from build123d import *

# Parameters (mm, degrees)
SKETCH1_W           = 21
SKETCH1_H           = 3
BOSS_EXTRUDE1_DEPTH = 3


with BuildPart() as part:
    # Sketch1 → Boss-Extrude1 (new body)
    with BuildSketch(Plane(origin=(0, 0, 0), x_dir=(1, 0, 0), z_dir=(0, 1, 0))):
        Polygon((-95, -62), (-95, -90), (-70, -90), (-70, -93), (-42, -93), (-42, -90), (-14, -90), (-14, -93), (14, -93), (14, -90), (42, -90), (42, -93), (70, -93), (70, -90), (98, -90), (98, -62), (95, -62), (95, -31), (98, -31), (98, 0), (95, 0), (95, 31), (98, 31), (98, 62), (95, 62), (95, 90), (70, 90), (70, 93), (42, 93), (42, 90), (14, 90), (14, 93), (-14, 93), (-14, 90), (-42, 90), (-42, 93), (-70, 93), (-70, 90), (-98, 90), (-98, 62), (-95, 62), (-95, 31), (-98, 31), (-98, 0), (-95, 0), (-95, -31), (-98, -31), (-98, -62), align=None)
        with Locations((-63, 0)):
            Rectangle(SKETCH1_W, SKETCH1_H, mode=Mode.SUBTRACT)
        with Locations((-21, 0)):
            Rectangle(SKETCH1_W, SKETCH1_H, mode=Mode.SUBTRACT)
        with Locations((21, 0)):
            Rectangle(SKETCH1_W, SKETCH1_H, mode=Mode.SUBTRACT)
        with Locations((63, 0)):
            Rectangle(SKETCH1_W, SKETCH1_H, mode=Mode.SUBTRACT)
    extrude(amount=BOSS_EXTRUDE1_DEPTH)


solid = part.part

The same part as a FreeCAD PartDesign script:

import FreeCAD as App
import Part
import Sketcher

doc = App.newDocument("Part")
body = doc.addObject("PartDesign::Body", "Body")

# Sketch on XZ plane
sketch1 = body.newObject("Sketcher::SketchObject", "Sketch")
sketch1.AttachmentSupport = (doc.getObject("XZ_Plane"), [""])
sketch1.MapMode = "FlatFace"
sketch1.addGeometry([
    Part.LineSegment(App.Vector(-95, 62, 0), App.Vector(-95, 90, 0)),  # 0
    Part.LineSegment(App.Vector(-95, 90, 0), App.Vector(-70, 90, 0)),  # 1
    Part.LineSegment(App.Vector(-70, 90, 0), App.Vector(-70, 93, 0)),  # 2
    Part.LineSegment(App.Vector(-70, 93, 0), App.Vector(-42, 93, 0)),  # 3
    Part.LineSegment(App.Vector(-42, 93, 0), App.Vector(-42, 90, 0)),  # 4
    Part.LineSegment(App.Vector(-42, 90, 0), App.Vector(-14, 90, 0)),  # 5
    Part.LineSegment(App.Vector(-14, 90, 0), App.Vector(-14, 93, 0)),  # 6
    Part.LineSegment(App.Vector(-14, 93, 0), App.Vector(14, 93, 0)),  # 7
    Part.LineSegment(App.Vector(14, 93, 0), App.Vector(14, 90, 0)),  # 8
    Part.LineSegment(App.Vector(14, 90, 0), App.Vector(42, 90, 0)),  # 9
    Part.LineSegment(App.Vector(42, 90, 0), App.Vector(42, 93, 0)),  # 10
    Part.LineSegment(App.Vector(42, 93, 0), App.Vector(70, 93, 0)),  # 11
    Part.LineSegment(App.Vector(70, 93, 0), App.Vector(70, 90, 0)),  # 12
    Part.LineSegment(App.Vector(70, 90, 0), App.Vector(98, 90, 0)),  # 13
    Part.LineSegment(App.Vector(98, 90, 0), App.Vector(98, 62, 0)),  # 14
    Part.LineSegment(App.Vector(98, 62, 0), App.Vector(95, 62, 0)),  # 15
    Part.LineSegment(App.Vector(95, 62, 0), App.Vector(95, 31, 0)),  # 16
    Part.LineSegment(App.Vector(95, 31, 0), App.Vector(98, 31, 0)),  # 17
    Part.LineSegment(App.Vector(98, 31, 0), App.Vector(98, 0, 0)),  # 18
    Part.LineSegment(App.Vector(98, 0, 0), App.Vector(95, 0, 0)),  # 19
    Part.LineSegment(App.Vector(95, 0, 0), App.Vector(95, -31, 0)),  # 20
    Part.LineSegment(App.Vector(95, -31, 0), App.Vector(98, -31, 0)),  # 21
    Part.LineSegment(App.Vector(98, -31, 0), App.Vector(98, -62, 0)),  # 22
    Part.LineSegment(App.Vector(98, -62, 0), App.Vector(95, -62, 0)),  # 23
    Part.LineSegment(App.Vector(95, -62, 0), App.Vector(95, -90, 0)),  # 24
    Part.LineSegment(App.Vector(95, -90, 0), App.Vector(70, -90, 0)),  # 25
    Part.LineSegment(App.Vector(70, -90, 0), App.Vector(70, -93, 0)),  # 26
    Part.LineSegment(App.Vector(70, -93, 0), App.Vector(42, -93, 0)),  # 27
    Part.LineSegment(App.Vector(42, -93, 0), App.Vector(42, -90, 0)),  # 28
    Part.LineSegment(App.Vector(42, -90, 0), App.Vector(14, -90, 0)),  # 29
    Part.LineSegment(App.Vector(14, -90, 0), App.Vector(14, -93, 0)),  # 30
    Part.LineSegment(App.Vector(14, -93, 0), App.Vector(-14, -93, 0)),  # 31
    Part.LineSegment(App.Vector(-14, -93, 0), App.Vector(-14, -90, 0)),  # 32
    Part.LineSegment(App.Vector(-14, -90, 0), App.Vector(-42, -90, 0)),  # 33
    Part.LineSegment(App.Vector(-42, -90, 0), App.Vector(-42, -93, 0)),  # 34
    Part.LineSegment(App.Vector(-42, -93, 0), App.Vector(-70, -93, 0)),  # 35
    Part.LineSegment(App.Vector(-70, -93, 0), App.Vector(-70, -90, 0)),  # 36
    Part.LineSegment(App.Vector(-70, -90, 0), App.Vector(-98, -90, 0)),  # 37
    Part.LineSegment(App.Vector(-98, -90, 0), App.Vector(-98, -62, 0)),  # 38
    Part.LineSegment(App.Vector(-98, -62, 0), App.Vector(-95, -62, 0)),  # 39
    Part.LineSegment(App.Vector(-95, -62, 0), App.Vector(-95, -31, 0)),  # 40
    Part.LineSegment(App.Vector(-95, -31, 0), App.Vector(-98, -31, 0)),  # 41
    Part.LineSegment(App.Vector(-98, -31, 0), App.Vector(-98, 0, 0)),  # 42
    Part.LineSegment(App.Vector(-98, 0, 0), App.Vector(-95, 0, 0)),  # 43
    Part.LineSegment(App.Vector(-95, 0, 0), App.Vector(-95, 31, 0)),  # 44
    Part.LineSegment(App.Vector(-95, 31, 0), App.Vector(-98, 31, 0)),  # 45
    Part.LineSegment(App.Vector(-98, 31, 0), App.Vector(-98, 62, 0)),  # 46
    Part.LineSegment(App.Vector(-98, 62, 0), App.Vector(-95, 62, 0)),  # 47
    Part.LineSegment(App.Vector(-52.5, 1.5, 0), App.Vector(-73.5, 1.5, 0)),  # 48
    Part.LineSegment(App.Vector(-73.5, 1.5, 0), App.Vector(-73.5, -1.5, 0)),  # 49
    Part.LineSegment(App.Vector(-73.5, -1.5, 0), App.Vector(-52.5, -1.5, 0)),  # 50
    Part.LineSegment(App.Vector(-52.5, -1.5, 0), App.Vector(-52.5, 1.5, 0)),  # 51
    Part.LineSegment(App.Vector(-10.5, 1.5, 0), App.Vector(-31.5, 1.5, 0)),  # 52
    Part.LineSegment(App.Vector(-31.5, 1.5, 0), App.Vector(-31.5, -1.5, 0)),  # 53
    Part.LineSegment(App.Vector(-31.5, -1.5, 0), App.Vector(-10.5, -1.5, 0)),  # 54
    Part.LineSegment(App.Vector(-10.5, -1.5, 0), App.Vector(-10.5, 1.5, 0)),  # 55
    Part.LineSegment(App.Vector(31.5, 1.5, 0), App.Vector(10.5, 1.5, 0)),  # 56
    Part.LineSegment(App.Vector(10.5, 1.5, 0), App.Vector(10.5, -1.5, 0)),  # 57
    Part.LineSegment(App.Vector(10.5, -1.5, 0), App.Vector(31.5, -1.5, 0)),  # 58
    Part.LineSegment(App.Vector(31.5, -1.5, 0), App.Vector(31.5, 1.5, 0)),  # 59
    Part.LineSegment(App.Vector(73.5, 1.5, 0), App.Vector(52.5, 1.5, 0)),  # 60
    Part.LineSegment(App.Vector(52.5, 1.5, 0), App.Vector(52.5, -1.5, 0)),  # 61
    Part.LineSegment(App.Vector(52.5, -1.5, 0), App.Vector(73.5, -1.5, 0)),  # 62
    Part.LineSegment(App.Vector(73.5, -1.5, 0), App.Vector(73.5, 1.5, 0)),  # 63
], False)
sketch1.addConstraint([
    Sketcher.Constraint("Coincident", 0, 2, 1, 1),
    Sketcher.Constraint("Coincident", 1, 2, 2, 1),
    Sketcher.Constraint("Coincident", 2, 2, 3, 1),
    Sketcher.Constraint("Coincident", 3, 2, 4, 1),
    Sketcher.Constraint("Coincident", 4, 2, 5, 1),
    Sketcher.Constraint("Coincident", 5, 2, 6, 1),
    Sketcher.Constraint("Coincident", 6, 2, 7, 1),
    Sketcher.Constraint("Coincident", 7, 2, 8, 1),
    Sketcher.Constraint("Coincident", 8, 2, 9, 1),
    Sketcher.Constraint("Coincident", 9, 2, 10, 1),
    Sketcher.Constraint("Coincident", 10, 2, 11, 1),
    Sketcher.Constraint("Coincident", 11, 2, 12, 1),
    Sketcher.Constraint("Coincident", 12, 2, 13, 1),
    Sketcher.Constraint("Coincident", 13, 2, 14, 1),
    Sketcher.Constraint("Coincident", 14, 2, 15, 1),
    Sketcher.Constraint("Coincident", 15, 2, 16, 1),
    Sketcher.Constraint("Coincident", 16, 2, 17, 1),
    Sketcher.Constraint("Coincident", 17, 2, 18, 1),
    Sketcher.Constraint("Coincident", 18, 2, 19, 1),
    Sketcher.Constraint("Coincident", 19, 2, 20, 1),
    Sketcher.Constraint("Coincident", 20, 2, 21, 1),
    Sketcher.Constraint("Coincident", 21, 2, 22, 1),
    Sketcher.Constraint("Coincident", 22, 2, 23, 1),
    Sketcher.Constraint("Coincident", 23, 2, 24, 1),
    Sketcher.Constraint("Coincident", 24, 2, 25, 1),
    Sketcher.Constraint("Coincident", 25, 2, 26, 1),
    Sketcher.Constraint("Coincident", 26, 2, 27, 1),
    Sketcher.Constraint("Coincident", 27, 2, 28, 1),
    Sketcher.Constraint("Coincident", 28, 2, 29, 1),
    Sketcher.Constraint("Coincident", 29, 2, 30, 1),
    Sketcher.Constraint("Coincident", 30, 2, 31, 1),
    Sketcher.Constraint("Coincident", 31, 2, 32, 1),
    Sketcher.Constraint("Coincident", 32, 2, 33, 1),
    Sketcher.Constraint("Coincident", 33, 2, 34, 1),
    Sketcher.Constraint("Coincident", 34, 2, 35, 1),
    Sketcher.Constraint("Coincident", 35, 2, 36, 1),
    Sketcher.Constraint("Coincident", 36, 2, 37, 1),
    Sketcher.Constraint("Coincident", 37, 2, 38, 1),
    Sketcher.Constraint("Coincident", 38, 2, 39, 1),
    Sketcher.Constraint("Coincident", 39, 2, 40, 1),
    Sketcher.Constraint("Coincident", 40, 2, 41, 1),
    Sketcher.Constraint("Coincident", 41, 2, 42, 1),
    Sketcher.Constraint("Coincident", 42, 2, 43, 1),
    Sketcher.Constraint("Coincident", 43, 2, 44, 1),
    Sketcher.Constraint("Coincident", 44, 2, 45, 1),
    Sketcher.Constraint("Coincident", 45, 2, 46, 1),
    Sketcher.Constraint("Coincident", 46, 2, 47, 1),
    Sketcher.Constraint("Coincident", 47, 2, 0, 1),
    Sketcher.Constraint("Coincident", 48, 2, 49, 1),
    Sketcher.Constraint("Coincident", 49, 2, 50, 1),
    Sketcher.Constraint("Coincident", 50, 2, 51, 1),
    Sketcher.Constraint("Coincident", 51, 2, 48, 1),
    Sketcher.Constraint("Coincident", 52, 2, 53, 1),
    Sketcher.Constraint("Coincident", 53, 2, 54, 1),
    Sketcher.Constraint("Coincident", 54, 2, 55, 1),
    Sketcher.Constraint("Coincident", 55, 2, 52, 1),
    Sketcher.Constraint("Coincident", 56, 2, 57, 1),
    Sketcher.Constraint("Coincident", 57, 2, 58, 1),
    Sketcher.Constraint("Coincident", 58, 2, 59, 1),
    Sketcher.Constraint("Coincident", 59, 2, 56, 1),
    Sketcher.Constraint("Coincident", 60, 2, 61, 1),
    Sketcher.Constraint("Coincident", 61, 2, 62, 1),
    Sketcher.Constraint("Coincident", 62, 2, 63, 1),
    Sketcher.Constraint("Coincident", 63, 2, 60, 1),
    Sketcher.Constraint("Vertical", 0),
    Sketcher.Constraint("Horizontal", 1),
    Sketcher.Constraint("Vertical", 2),
    Sketcher.Constraint("Horizontal", 3),
    Sketcher.Constraint("Vertical", 4),
    Sketcher.Constraint("Horizontal", 5),
    Sketcher.Constraint("Vertical", 6),
    Sketcher.Constraint("Horizontal", 7),
    Sketcher.Constraint("Vertical", 8),
    Sketcher.Constraint("Horizontal", 9),
    Sketcher.Constraint("Vertical", 10),
    Sketcher.Constraint("Horizontal", 11),
    Sketcher.Constraint("Vertical", 12),
    Sketcher.Constraint("Horizontal", 13),
    Sketcher.Constraint("Vertical", 14),
    Sketcher.Constraint("Horizontal", 15),
    Sketcher.Constraint("Vertical", 16),
    Sketcher.Constraint("Horizontal", 17),
    Sketcher.Constraint("Vertical", 18),
    Sketcher.Constraint("Horizontal", 19),
    Sketcher.Constraint("Vertical", 20),
    Sketcher.Constraint("Horizontal", 21),
    Sketcher.Constraint("Vertical", 22),
    Sketcher.Constraint("Horizontal", 23),
    Sketcher.Constraint("Vertical", 24),
    Sketcher.Constraint("Horizontal", 25),
    Sketcher.Constraint("Vertical", 26),
    Sketcher.Constraint("Horizontal", 27),
    Sketcher.Constraint("Vertical", 28),
    Sketcher.Constraint("Horizontal", 29),
    Sketcher.Constraint("Vertical", 30),
    Sketcher.Constraint("Horizontal", 31),
    Sketcher.Constraint("Vertical", 32),
    Sketcher.Constraint("Horizontal", 33),
    Sketcher.Constraint("Vertical", 34),
    Sketcher.Constraint("Horizontal", 35),
    Sketcher.Constraint("Vertical", 36),
    Sketcher.Constraint("Horizontal", 37),
    Sketcher.Constraint("Vertical", 38),
    Sketcher.Constraint("Horizontal", 39),
    Sketcher.Constraint("Vertical", 40),
    Sketcher.Constraint("Horizontal", 41),
    Sketcher.Constraint("Vertical", 42),
    Sketcher.Constraint("Horizontal", 43),
    Sketcher.Constraint("Vertical", 44),
    Sketcher.Constraint("Horizontal", 45),
    Sketcher.Constraint("Vertical", 46),
    Sketcher.Constraint("Horizontal", 47),
    Sketcher.Constraint("Horizontal", 48),
    Sketcher.Constraint("Vertical", 49),
    Sketcher.Constraint("Horizontal", 50),
    Sketcher.Constraint("Vertical", 51),
    Sketcher.Constraint("Horizontal", 52),
    Sketcher.Constraint("Vertical", 53),
    Sketcher.Constraint("Horizontal", 54),
    Sketcher.Constraint("Vertical", 55),
    Sketcher.Constraint("Horizontal", 56),
    Sketcher.Constraint("Vertical", 57),
    Sketcher.Constraint("Horizontal", 58),
    Sketcher.Constraint("Vertical", 59),
    Sketcher.Constraint("Horizontal", 60),
    Sketcher.Constraint("Vertical", 61),
    Sketcher.Constraint("Horizontal", 62),
    Sketcher.Constraint("Vertical", 63),
    Sketcher.Constraint("Symmetric", 0, 2, 24, 2, -1, 1),
    Sketcher.Constraint("Symmetric", 2, 2, 26, 2, -1, 1),
    Sketcher.Constraint("Symmetric", 4, 2, 28, 2, -1, 1),
    Sketcher.Constraint("Symmetric", 6, 2, 30, 2, -1, 1),
    Sketcher.Constraint("Symmetric", 8, 2, 32, 2, -1, 1),
    Sketcher.Constraint("Symmetric", 10, 2, 34, 2, -1, 1),
    Sketcher.Constraint("Symmetric", 12, 2, 36, 2, -1, 1),
    Sketcher.Constraint("Symmetric", 14, 2, 38, 2, -1, 1),
    Sketcher.Constraint("Symmetric", 16, 2, 40, 2, -1, 1),
    Sketcher.Constraint("Symmetric", 18, 2, 42, 2, -1, 1),
    Sketcher.Constraint("Symmetric", 20, 2, 44, 2, -1, 1),
    Sketcher.Constraint("Symmetric", 22, 2, 46, 2, -1, 1),
    Sketcher.Constraint("Symmetric", 54, 2, 56, 2, -1, 1),
    Sketcher.Constraint("Symmetric", 52, 2, 58, 2, -1, 1),
    Sketcher.Constraint("Symmetric", 50, 2, 60, 2, -1, 1),
    Sketcher.Constraint("Symmetric", 48, 2, 62, 2, -1, 1),
    Sketcher.Constraint("Symmetric", 5, 2, 8, 2, -2),
    Sketcher.Constraint("Symmetric", 3, 2, 10, 2, -2),
    Sketcher.Constraint("Symmetric", 1, 2, 12, 2, -2),
    Sketcher.Constraint("Symmetric", 22, 2, 38, 2, -2),
    Sketcher.Constraint("Symmetric", 20, 2, 40, 2, -2),
    Sketcher.Constraint("PointOnObject", 18, 2, -1),
    Sketcher.Constraint("Horizontal", 1, 2, 4, 2),
    Sketcher.Constraint("Horizontal", 3, 2, 6, 2),
    Sketcher.Constraint("Horizontal", 51, 2, 52, 2),
    Sketcher.Constraint("Horizontal", 50, 2, 53, 2),
    Sketcher.Constraint("Horizontal", 55, 2, 56, 2),
    Sketcher.Constraint("Vertical", 14, 2, 17, 2),
    Sketcher.Constraint("Vertical", 20, 2, 23, 2),
    Sketcher.Constraint("Equal", 3, 5),
    Sketcher.Constraint("Equal", 5, 7),
    Sketcher.Constraint("Equal", 11, 13),
    Sketcher.Constraint("Equal", 50, 52),
    Sketcher.Constraint("Equal", 37, 0),
    Sketcher.Constraint("Equal", 47, 2),
    Sketcher.Constraint("Equal", 16, 18),
    Sketcher.Constraint("Equal", 36, 49),
    Sketcher.Constraint("DistanceX", 1, 1, 1, 2, 25.0),
    Sketcher.Constraint("DistanceX", 3, 1, 3, 2, 28.0),
    Sketcher.Constraint("DistanceX", 48, 2, 48, 1, 21.0),
    Sketcher.Constraint("DistanceY", 16, 2, 16, 1, 31.0),
    Sketcher.Constraint("DistanceX", 48, 2, -1, 1, 73.5),
    Sketcher.Constraint("DistanceX", 52, 2, -1, 1, 31.5),
])
pad1 = body.newObject("PartDesign::Pad", "Pad")
pad1.Profile = sketch1
pad1.Length = 3
pad1.Reversed = True

doc.recompute()
